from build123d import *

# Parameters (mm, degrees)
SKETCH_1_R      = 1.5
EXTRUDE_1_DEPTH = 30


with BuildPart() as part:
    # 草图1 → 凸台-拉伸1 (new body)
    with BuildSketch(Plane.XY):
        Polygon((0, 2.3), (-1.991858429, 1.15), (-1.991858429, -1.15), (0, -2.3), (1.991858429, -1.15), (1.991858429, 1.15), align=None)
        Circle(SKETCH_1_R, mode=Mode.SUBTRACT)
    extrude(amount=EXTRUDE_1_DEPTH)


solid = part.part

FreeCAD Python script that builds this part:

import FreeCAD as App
import Part
import Sketcher
from FreeCAD import Vector
Q = App.Units.Quantity


def add_polygon(sketch, points):
    """Adds a closed chain of lines whose ends are joined by coincident constraints."""
    first, n = sketch.GeometryCount, len(points)
    for a, b in zip(points, points[1:] + points[:1]):
        sketch.addGeometry(Part.LineSegment(App.Vector(*a, 0), App.Vector(*b, 0)), False)
    for i in range(n):
        sketch.addConstraint(Sketcher.Constraint("Coincident", first + i, 2, first + (i + 1) % n, 1))

doc = App.newDocument("Part")
body = doc.addObject("PartDesign::Body", "Body")

# Sketch on XY plane
sketch1 = body.newObject("Sketcher::SketchObject", "Sketch")
sketch1.AttachmentSupport = (doc.getObject("XY_Plane"), [""])
sketch1.MapMode = "FlatFace"
add_polygon(sketch1, [(0, 2.3), (-1.991858, 1.15), (-1.991858, -1.15), (0, -2.3), (1.991858, -1.15), (1.991858, 1.15)])  # lines 0-5
sketch1.addGeometry(Part.Circle(Vector(0, 0, 0), Vector(0, 0, 1), 1.5), False)  # 6
sketch1.addConstraint([
    Sketcher.Constraint("Vertical", 1),
    Sketcher.Constraint("Vertical", 4),
    Sketcher.Constraint("Coincident", 6, 3, -1, 1),
    Sketcher.Constraint("Symmetric", 0, 2, 3, 2, -1, 1),
    Sketcher.Constraint("Symmetric", 2, 2, 5, 2, -1, 1),
    Sketcher.Constraint("PointOnObject", 2, 2, -2),
    Sketcher.Constraint("Parallel", 2, 5),
    Sketcher.Constraint("Horizontal", 1, 2, 3, 2),
    Sketcher.Constraint("Diameter", 6, 3.0),
    Sketcher.Constraint("Angle", 0, Q("-150 deg")),
    Sketcher.Constraint("DistanceY", 1, 2, 1, 1, 2.3),
    Sketcher.Constraint("Distance", 0, 2.3),
])
pad1 = body.newObject("PartDesign::Pad", "Pad")
pad1.Profile = sketch1
pad1.Length = 30

doc.recompute()
